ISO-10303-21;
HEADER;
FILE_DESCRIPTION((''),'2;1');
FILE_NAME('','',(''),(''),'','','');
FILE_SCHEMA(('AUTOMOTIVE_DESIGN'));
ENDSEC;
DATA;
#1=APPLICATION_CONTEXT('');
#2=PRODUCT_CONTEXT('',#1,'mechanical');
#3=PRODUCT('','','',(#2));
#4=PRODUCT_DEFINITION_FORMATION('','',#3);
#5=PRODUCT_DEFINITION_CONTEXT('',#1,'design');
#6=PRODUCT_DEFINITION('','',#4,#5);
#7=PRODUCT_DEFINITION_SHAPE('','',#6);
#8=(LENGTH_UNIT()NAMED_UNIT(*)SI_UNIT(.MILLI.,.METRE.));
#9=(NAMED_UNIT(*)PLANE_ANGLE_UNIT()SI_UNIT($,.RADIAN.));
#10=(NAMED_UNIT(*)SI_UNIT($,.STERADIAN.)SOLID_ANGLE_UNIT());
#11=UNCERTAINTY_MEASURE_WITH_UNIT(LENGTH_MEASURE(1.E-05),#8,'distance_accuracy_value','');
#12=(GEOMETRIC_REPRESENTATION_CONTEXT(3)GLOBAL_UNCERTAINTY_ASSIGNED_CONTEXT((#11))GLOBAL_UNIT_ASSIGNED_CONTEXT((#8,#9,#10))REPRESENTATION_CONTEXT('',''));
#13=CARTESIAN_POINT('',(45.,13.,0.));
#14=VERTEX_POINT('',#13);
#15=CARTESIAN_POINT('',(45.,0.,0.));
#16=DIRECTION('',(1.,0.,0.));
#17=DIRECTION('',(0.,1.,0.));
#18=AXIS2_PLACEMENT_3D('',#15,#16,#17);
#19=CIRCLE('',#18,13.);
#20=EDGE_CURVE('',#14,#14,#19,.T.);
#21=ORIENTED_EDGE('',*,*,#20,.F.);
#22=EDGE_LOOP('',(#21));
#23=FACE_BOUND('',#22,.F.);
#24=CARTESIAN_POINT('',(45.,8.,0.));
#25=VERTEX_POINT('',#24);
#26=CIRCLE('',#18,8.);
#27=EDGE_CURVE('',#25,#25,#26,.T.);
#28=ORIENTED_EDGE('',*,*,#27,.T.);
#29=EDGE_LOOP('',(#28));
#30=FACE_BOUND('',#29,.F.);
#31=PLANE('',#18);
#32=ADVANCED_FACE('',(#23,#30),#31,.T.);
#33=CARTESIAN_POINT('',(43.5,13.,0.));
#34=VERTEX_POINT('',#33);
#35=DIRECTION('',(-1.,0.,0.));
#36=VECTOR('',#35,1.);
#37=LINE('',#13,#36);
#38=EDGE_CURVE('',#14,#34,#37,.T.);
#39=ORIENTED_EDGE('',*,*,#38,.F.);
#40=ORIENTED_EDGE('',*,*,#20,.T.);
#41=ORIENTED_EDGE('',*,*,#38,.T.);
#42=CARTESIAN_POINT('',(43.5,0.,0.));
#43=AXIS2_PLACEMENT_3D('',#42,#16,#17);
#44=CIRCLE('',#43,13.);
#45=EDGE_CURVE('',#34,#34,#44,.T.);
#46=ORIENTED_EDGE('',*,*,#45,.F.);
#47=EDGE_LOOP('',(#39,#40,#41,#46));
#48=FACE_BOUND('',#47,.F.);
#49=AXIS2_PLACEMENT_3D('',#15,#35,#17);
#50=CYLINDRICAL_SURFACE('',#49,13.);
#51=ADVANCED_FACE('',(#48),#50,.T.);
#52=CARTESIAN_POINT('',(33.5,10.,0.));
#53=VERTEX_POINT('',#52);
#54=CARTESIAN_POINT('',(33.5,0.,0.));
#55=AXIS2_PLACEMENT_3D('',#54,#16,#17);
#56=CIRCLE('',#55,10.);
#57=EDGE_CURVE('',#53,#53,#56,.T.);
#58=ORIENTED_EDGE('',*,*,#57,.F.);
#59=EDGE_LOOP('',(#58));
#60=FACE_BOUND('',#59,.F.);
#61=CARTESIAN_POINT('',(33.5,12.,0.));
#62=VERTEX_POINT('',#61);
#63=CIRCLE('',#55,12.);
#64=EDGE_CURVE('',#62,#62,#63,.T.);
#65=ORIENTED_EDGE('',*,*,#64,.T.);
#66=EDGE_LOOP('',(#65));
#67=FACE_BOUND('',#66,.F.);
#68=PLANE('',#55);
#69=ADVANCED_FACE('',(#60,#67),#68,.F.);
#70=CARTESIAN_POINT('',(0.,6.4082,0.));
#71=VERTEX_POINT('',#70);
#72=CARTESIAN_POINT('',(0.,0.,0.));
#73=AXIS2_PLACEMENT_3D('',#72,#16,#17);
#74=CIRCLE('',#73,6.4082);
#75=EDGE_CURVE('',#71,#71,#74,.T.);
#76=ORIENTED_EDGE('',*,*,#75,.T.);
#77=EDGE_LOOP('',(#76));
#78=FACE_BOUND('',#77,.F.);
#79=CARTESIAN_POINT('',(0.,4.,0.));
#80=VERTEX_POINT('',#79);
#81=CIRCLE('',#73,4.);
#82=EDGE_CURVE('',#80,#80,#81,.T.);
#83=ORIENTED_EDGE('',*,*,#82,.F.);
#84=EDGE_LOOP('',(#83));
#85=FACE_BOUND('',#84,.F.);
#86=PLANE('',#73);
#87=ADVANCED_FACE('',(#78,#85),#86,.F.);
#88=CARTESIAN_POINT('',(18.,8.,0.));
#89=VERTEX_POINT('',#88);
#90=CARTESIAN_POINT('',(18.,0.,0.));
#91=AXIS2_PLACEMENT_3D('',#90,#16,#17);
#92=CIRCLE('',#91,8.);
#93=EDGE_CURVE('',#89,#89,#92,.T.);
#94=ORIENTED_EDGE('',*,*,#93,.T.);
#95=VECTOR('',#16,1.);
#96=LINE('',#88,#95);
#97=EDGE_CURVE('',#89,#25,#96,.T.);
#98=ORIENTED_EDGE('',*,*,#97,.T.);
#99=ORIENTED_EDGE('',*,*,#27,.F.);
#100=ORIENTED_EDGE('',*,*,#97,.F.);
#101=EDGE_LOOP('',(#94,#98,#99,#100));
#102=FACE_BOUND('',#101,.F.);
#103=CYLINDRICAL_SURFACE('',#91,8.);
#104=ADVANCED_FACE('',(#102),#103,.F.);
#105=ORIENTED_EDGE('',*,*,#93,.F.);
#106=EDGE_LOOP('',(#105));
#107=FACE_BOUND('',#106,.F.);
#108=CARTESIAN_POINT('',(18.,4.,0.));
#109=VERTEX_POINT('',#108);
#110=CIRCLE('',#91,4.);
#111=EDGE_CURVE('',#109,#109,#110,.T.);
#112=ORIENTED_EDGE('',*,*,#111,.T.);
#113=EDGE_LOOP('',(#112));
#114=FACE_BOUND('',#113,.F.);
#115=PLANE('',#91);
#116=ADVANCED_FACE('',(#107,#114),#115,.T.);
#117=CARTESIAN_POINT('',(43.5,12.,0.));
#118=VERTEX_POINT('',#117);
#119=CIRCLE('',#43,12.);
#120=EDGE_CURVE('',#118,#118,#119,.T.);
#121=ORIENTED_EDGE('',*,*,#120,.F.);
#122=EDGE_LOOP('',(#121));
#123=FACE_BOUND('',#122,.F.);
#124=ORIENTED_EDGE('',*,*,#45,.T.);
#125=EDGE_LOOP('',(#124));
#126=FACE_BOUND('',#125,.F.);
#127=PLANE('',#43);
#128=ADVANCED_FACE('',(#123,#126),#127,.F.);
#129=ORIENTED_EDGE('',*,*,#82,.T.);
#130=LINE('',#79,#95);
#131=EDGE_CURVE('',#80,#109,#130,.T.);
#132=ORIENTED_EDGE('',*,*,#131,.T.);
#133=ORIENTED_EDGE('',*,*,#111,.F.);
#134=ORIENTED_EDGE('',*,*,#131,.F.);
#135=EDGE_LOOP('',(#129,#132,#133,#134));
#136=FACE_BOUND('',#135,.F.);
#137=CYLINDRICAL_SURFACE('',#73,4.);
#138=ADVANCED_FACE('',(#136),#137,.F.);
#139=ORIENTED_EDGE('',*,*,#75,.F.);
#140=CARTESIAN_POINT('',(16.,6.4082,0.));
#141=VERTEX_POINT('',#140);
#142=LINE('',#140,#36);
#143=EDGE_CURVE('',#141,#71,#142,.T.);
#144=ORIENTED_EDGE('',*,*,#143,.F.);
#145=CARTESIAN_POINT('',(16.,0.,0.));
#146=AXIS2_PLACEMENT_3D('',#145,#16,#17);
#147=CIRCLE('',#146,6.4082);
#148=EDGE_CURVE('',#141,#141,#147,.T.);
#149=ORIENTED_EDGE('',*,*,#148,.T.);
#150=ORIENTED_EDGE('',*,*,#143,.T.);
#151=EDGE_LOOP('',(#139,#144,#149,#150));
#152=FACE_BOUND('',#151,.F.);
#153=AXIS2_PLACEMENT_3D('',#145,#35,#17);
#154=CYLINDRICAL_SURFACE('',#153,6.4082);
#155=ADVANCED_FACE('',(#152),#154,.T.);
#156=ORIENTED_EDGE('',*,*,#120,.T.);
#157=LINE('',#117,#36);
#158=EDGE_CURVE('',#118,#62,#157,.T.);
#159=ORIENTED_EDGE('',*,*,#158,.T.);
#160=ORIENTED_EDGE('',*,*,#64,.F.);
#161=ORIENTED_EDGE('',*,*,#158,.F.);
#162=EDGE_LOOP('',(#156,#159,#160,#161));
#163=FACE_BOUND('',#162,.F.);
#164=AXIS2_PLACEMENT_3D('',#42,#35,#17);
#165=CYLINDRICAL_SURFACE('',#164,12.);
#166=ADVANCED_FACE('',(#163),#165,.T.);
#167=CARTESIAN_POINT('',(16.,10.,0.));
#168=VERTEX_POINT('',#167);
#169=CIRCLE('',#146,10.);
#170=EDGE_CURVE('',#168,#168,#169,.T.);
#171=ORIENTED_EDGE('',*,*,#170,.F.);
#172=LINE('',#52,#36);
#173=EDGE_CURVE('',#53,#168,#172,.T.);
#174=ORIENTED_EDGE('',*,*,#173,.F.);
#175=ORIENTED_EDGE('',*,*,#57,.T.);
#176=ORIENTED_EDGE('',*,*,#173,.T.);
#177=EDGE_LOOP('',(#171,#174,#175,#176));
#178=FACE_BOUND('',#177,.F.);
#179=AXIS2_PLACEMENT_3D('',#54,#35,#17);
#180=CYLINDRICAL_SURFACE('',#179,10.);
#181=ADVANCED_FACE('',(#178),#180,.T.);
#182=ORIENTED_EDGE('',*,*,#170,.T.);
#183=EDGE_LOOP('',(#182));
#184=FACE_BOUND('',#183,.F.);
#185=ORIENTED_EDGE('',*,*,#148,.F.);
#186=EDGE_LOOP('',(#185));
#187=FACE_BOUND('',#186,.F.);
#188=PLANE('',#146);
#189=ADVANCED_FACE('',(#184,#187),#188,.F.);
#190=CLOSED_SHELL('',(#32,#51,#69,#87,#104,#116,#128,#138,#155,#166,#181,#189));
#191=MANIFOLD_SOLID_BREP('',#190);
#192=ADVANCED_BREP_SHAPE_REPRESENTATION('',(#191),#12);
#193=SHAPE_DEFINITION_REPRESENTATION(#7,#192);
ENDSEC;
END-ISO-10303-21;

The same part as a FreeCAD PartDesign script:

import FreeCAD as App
import Part
import Sketcher

V = App.Vector
Q = App.Units.Quantity


def add_polygon(sketch, points):
    """Adds a closed chain of lines whose ends are joined by coincident constraints."""
    first, n = sketch.GeometryCount, len(points)
    for a, b in zip(points, points[1:] + points[:1]):
        sketch.addGeometry(Part.LineSegment(App.Vector(*a, 0), App.Vector(*b, 0)), False)
    for i in range(n):
        sketch.addConstraint(Sketcher.Constraint("Coincident", first + i, 2, first + (i + 1) % n, 1))

doc = App.newDocument("Part")
body = doc.addObject("PartDesign::Body", "Body")

# Sketch on XY plane
sketch1 = body.newObject("Sketcher::SketchObject", "Sketch")
sketch1.AttachmentSupport = (doc.getObject("XY_Plane"), [""])
sketch1.MapMode = "FlatFace"
add_polygon(sketch1, [(0, 6.4082), (0, 4), (18, 4), (18, 8), (45, 8), (45, 13), (43.5, 13), (43.5, 12), (33.5, 12), (33.5, 10), (16, 10), (16, 6.4082)])  # lines 0-11
sketch1.addConstraint(Sketcher.Constraint("Vertical", 0))
sketch1.addConstraint(Sketcher.Constraint("Horizontal", 1))
sketch1.addConstraint(Sketcher.Constraint("Vertical", 2))
sketch1.addConstraint(Sketcher.Constraint("Horizontal", 3))
sketch1.addConstraint(Sketcher.Constraint("Vertical", 4))
sketch1.addConstraint(Sketcher.Constraint("Horizontal", 5))
sketch1.addConstraint(Sketcher.Constraint("Vertical", 6))
sketch1.addConstraint(Sketcher.Constraint("Horizontal", 7))
sketch1.addConstraint(Sketcher.Constraint("Vertical", 8))
sketch1.addConstraint(Sketcher.Constraint("Horizontal", 9))
sketch1.addConstraint(Sketcher.Constraint("Vertical", 10))
sketch1.addConstraint(Sketcher.Constraint("Horizontal", 11))
sketch1.addConstraint(Sketcher.Constraint("PointOnObject", 0, 2, -2))
sketch1.addConstraint(Sketcher.Constraint("DistanceX", 1, 1, 1, 2, Q("18 mm")))
sketch1.addConstraint(Sketcher.Constraint("DistanceX", 3, 1, 3, 2, Q("27 mm")))
sketch1.addConstraint(Sketcher.Constraint("DistanceX", 7, 2, 7, 1, Q("10 mm")))
sketch1.addConstraint(Sketcher.Constraint("DistanceX", 11, 2, 11, 1, Q("16 mm")))
sketch1.addConstraint(Sketcher.Constraint("DistanceY", 2, 1, 2, 2, Q("4 mm")))
sketch1.addConstraint(Sketcher.Constraint("DistanceY", 4, 1, 4, 2, Q("5 mm")))
sketch1.addConstraint(Sketcher.Constraint("DistanceY", 6, 2, 6, 1, Q("1 mm")))
sketch1.addConstraint(Sketcher.Constraint("DistanceY", 8, 2, 8, 1, Q("2 mm")))
sketch1.addConstraint(Sketcher.Constraint("DistanceX", 5, 2, 5, 1, Q("1.5 mm")))
sketch1.addConstraint(Sketcher.Constraint("DistanceY", -1, 1, 0, 2, Q("4 mm")))
sketch1.addConstraint(Sketcher.Constraint("DistanceY", 0, 2, 0, 1, Q("2.4082 mm")))
revolution = body.newObject("PartDesign::Revolution", "Revolution")
revolution.Profile = sketch1
revolution.ReferenceAxis = (sketch1, ["H_Axis"])
revolution.Angle = 360

doc.recompute()
